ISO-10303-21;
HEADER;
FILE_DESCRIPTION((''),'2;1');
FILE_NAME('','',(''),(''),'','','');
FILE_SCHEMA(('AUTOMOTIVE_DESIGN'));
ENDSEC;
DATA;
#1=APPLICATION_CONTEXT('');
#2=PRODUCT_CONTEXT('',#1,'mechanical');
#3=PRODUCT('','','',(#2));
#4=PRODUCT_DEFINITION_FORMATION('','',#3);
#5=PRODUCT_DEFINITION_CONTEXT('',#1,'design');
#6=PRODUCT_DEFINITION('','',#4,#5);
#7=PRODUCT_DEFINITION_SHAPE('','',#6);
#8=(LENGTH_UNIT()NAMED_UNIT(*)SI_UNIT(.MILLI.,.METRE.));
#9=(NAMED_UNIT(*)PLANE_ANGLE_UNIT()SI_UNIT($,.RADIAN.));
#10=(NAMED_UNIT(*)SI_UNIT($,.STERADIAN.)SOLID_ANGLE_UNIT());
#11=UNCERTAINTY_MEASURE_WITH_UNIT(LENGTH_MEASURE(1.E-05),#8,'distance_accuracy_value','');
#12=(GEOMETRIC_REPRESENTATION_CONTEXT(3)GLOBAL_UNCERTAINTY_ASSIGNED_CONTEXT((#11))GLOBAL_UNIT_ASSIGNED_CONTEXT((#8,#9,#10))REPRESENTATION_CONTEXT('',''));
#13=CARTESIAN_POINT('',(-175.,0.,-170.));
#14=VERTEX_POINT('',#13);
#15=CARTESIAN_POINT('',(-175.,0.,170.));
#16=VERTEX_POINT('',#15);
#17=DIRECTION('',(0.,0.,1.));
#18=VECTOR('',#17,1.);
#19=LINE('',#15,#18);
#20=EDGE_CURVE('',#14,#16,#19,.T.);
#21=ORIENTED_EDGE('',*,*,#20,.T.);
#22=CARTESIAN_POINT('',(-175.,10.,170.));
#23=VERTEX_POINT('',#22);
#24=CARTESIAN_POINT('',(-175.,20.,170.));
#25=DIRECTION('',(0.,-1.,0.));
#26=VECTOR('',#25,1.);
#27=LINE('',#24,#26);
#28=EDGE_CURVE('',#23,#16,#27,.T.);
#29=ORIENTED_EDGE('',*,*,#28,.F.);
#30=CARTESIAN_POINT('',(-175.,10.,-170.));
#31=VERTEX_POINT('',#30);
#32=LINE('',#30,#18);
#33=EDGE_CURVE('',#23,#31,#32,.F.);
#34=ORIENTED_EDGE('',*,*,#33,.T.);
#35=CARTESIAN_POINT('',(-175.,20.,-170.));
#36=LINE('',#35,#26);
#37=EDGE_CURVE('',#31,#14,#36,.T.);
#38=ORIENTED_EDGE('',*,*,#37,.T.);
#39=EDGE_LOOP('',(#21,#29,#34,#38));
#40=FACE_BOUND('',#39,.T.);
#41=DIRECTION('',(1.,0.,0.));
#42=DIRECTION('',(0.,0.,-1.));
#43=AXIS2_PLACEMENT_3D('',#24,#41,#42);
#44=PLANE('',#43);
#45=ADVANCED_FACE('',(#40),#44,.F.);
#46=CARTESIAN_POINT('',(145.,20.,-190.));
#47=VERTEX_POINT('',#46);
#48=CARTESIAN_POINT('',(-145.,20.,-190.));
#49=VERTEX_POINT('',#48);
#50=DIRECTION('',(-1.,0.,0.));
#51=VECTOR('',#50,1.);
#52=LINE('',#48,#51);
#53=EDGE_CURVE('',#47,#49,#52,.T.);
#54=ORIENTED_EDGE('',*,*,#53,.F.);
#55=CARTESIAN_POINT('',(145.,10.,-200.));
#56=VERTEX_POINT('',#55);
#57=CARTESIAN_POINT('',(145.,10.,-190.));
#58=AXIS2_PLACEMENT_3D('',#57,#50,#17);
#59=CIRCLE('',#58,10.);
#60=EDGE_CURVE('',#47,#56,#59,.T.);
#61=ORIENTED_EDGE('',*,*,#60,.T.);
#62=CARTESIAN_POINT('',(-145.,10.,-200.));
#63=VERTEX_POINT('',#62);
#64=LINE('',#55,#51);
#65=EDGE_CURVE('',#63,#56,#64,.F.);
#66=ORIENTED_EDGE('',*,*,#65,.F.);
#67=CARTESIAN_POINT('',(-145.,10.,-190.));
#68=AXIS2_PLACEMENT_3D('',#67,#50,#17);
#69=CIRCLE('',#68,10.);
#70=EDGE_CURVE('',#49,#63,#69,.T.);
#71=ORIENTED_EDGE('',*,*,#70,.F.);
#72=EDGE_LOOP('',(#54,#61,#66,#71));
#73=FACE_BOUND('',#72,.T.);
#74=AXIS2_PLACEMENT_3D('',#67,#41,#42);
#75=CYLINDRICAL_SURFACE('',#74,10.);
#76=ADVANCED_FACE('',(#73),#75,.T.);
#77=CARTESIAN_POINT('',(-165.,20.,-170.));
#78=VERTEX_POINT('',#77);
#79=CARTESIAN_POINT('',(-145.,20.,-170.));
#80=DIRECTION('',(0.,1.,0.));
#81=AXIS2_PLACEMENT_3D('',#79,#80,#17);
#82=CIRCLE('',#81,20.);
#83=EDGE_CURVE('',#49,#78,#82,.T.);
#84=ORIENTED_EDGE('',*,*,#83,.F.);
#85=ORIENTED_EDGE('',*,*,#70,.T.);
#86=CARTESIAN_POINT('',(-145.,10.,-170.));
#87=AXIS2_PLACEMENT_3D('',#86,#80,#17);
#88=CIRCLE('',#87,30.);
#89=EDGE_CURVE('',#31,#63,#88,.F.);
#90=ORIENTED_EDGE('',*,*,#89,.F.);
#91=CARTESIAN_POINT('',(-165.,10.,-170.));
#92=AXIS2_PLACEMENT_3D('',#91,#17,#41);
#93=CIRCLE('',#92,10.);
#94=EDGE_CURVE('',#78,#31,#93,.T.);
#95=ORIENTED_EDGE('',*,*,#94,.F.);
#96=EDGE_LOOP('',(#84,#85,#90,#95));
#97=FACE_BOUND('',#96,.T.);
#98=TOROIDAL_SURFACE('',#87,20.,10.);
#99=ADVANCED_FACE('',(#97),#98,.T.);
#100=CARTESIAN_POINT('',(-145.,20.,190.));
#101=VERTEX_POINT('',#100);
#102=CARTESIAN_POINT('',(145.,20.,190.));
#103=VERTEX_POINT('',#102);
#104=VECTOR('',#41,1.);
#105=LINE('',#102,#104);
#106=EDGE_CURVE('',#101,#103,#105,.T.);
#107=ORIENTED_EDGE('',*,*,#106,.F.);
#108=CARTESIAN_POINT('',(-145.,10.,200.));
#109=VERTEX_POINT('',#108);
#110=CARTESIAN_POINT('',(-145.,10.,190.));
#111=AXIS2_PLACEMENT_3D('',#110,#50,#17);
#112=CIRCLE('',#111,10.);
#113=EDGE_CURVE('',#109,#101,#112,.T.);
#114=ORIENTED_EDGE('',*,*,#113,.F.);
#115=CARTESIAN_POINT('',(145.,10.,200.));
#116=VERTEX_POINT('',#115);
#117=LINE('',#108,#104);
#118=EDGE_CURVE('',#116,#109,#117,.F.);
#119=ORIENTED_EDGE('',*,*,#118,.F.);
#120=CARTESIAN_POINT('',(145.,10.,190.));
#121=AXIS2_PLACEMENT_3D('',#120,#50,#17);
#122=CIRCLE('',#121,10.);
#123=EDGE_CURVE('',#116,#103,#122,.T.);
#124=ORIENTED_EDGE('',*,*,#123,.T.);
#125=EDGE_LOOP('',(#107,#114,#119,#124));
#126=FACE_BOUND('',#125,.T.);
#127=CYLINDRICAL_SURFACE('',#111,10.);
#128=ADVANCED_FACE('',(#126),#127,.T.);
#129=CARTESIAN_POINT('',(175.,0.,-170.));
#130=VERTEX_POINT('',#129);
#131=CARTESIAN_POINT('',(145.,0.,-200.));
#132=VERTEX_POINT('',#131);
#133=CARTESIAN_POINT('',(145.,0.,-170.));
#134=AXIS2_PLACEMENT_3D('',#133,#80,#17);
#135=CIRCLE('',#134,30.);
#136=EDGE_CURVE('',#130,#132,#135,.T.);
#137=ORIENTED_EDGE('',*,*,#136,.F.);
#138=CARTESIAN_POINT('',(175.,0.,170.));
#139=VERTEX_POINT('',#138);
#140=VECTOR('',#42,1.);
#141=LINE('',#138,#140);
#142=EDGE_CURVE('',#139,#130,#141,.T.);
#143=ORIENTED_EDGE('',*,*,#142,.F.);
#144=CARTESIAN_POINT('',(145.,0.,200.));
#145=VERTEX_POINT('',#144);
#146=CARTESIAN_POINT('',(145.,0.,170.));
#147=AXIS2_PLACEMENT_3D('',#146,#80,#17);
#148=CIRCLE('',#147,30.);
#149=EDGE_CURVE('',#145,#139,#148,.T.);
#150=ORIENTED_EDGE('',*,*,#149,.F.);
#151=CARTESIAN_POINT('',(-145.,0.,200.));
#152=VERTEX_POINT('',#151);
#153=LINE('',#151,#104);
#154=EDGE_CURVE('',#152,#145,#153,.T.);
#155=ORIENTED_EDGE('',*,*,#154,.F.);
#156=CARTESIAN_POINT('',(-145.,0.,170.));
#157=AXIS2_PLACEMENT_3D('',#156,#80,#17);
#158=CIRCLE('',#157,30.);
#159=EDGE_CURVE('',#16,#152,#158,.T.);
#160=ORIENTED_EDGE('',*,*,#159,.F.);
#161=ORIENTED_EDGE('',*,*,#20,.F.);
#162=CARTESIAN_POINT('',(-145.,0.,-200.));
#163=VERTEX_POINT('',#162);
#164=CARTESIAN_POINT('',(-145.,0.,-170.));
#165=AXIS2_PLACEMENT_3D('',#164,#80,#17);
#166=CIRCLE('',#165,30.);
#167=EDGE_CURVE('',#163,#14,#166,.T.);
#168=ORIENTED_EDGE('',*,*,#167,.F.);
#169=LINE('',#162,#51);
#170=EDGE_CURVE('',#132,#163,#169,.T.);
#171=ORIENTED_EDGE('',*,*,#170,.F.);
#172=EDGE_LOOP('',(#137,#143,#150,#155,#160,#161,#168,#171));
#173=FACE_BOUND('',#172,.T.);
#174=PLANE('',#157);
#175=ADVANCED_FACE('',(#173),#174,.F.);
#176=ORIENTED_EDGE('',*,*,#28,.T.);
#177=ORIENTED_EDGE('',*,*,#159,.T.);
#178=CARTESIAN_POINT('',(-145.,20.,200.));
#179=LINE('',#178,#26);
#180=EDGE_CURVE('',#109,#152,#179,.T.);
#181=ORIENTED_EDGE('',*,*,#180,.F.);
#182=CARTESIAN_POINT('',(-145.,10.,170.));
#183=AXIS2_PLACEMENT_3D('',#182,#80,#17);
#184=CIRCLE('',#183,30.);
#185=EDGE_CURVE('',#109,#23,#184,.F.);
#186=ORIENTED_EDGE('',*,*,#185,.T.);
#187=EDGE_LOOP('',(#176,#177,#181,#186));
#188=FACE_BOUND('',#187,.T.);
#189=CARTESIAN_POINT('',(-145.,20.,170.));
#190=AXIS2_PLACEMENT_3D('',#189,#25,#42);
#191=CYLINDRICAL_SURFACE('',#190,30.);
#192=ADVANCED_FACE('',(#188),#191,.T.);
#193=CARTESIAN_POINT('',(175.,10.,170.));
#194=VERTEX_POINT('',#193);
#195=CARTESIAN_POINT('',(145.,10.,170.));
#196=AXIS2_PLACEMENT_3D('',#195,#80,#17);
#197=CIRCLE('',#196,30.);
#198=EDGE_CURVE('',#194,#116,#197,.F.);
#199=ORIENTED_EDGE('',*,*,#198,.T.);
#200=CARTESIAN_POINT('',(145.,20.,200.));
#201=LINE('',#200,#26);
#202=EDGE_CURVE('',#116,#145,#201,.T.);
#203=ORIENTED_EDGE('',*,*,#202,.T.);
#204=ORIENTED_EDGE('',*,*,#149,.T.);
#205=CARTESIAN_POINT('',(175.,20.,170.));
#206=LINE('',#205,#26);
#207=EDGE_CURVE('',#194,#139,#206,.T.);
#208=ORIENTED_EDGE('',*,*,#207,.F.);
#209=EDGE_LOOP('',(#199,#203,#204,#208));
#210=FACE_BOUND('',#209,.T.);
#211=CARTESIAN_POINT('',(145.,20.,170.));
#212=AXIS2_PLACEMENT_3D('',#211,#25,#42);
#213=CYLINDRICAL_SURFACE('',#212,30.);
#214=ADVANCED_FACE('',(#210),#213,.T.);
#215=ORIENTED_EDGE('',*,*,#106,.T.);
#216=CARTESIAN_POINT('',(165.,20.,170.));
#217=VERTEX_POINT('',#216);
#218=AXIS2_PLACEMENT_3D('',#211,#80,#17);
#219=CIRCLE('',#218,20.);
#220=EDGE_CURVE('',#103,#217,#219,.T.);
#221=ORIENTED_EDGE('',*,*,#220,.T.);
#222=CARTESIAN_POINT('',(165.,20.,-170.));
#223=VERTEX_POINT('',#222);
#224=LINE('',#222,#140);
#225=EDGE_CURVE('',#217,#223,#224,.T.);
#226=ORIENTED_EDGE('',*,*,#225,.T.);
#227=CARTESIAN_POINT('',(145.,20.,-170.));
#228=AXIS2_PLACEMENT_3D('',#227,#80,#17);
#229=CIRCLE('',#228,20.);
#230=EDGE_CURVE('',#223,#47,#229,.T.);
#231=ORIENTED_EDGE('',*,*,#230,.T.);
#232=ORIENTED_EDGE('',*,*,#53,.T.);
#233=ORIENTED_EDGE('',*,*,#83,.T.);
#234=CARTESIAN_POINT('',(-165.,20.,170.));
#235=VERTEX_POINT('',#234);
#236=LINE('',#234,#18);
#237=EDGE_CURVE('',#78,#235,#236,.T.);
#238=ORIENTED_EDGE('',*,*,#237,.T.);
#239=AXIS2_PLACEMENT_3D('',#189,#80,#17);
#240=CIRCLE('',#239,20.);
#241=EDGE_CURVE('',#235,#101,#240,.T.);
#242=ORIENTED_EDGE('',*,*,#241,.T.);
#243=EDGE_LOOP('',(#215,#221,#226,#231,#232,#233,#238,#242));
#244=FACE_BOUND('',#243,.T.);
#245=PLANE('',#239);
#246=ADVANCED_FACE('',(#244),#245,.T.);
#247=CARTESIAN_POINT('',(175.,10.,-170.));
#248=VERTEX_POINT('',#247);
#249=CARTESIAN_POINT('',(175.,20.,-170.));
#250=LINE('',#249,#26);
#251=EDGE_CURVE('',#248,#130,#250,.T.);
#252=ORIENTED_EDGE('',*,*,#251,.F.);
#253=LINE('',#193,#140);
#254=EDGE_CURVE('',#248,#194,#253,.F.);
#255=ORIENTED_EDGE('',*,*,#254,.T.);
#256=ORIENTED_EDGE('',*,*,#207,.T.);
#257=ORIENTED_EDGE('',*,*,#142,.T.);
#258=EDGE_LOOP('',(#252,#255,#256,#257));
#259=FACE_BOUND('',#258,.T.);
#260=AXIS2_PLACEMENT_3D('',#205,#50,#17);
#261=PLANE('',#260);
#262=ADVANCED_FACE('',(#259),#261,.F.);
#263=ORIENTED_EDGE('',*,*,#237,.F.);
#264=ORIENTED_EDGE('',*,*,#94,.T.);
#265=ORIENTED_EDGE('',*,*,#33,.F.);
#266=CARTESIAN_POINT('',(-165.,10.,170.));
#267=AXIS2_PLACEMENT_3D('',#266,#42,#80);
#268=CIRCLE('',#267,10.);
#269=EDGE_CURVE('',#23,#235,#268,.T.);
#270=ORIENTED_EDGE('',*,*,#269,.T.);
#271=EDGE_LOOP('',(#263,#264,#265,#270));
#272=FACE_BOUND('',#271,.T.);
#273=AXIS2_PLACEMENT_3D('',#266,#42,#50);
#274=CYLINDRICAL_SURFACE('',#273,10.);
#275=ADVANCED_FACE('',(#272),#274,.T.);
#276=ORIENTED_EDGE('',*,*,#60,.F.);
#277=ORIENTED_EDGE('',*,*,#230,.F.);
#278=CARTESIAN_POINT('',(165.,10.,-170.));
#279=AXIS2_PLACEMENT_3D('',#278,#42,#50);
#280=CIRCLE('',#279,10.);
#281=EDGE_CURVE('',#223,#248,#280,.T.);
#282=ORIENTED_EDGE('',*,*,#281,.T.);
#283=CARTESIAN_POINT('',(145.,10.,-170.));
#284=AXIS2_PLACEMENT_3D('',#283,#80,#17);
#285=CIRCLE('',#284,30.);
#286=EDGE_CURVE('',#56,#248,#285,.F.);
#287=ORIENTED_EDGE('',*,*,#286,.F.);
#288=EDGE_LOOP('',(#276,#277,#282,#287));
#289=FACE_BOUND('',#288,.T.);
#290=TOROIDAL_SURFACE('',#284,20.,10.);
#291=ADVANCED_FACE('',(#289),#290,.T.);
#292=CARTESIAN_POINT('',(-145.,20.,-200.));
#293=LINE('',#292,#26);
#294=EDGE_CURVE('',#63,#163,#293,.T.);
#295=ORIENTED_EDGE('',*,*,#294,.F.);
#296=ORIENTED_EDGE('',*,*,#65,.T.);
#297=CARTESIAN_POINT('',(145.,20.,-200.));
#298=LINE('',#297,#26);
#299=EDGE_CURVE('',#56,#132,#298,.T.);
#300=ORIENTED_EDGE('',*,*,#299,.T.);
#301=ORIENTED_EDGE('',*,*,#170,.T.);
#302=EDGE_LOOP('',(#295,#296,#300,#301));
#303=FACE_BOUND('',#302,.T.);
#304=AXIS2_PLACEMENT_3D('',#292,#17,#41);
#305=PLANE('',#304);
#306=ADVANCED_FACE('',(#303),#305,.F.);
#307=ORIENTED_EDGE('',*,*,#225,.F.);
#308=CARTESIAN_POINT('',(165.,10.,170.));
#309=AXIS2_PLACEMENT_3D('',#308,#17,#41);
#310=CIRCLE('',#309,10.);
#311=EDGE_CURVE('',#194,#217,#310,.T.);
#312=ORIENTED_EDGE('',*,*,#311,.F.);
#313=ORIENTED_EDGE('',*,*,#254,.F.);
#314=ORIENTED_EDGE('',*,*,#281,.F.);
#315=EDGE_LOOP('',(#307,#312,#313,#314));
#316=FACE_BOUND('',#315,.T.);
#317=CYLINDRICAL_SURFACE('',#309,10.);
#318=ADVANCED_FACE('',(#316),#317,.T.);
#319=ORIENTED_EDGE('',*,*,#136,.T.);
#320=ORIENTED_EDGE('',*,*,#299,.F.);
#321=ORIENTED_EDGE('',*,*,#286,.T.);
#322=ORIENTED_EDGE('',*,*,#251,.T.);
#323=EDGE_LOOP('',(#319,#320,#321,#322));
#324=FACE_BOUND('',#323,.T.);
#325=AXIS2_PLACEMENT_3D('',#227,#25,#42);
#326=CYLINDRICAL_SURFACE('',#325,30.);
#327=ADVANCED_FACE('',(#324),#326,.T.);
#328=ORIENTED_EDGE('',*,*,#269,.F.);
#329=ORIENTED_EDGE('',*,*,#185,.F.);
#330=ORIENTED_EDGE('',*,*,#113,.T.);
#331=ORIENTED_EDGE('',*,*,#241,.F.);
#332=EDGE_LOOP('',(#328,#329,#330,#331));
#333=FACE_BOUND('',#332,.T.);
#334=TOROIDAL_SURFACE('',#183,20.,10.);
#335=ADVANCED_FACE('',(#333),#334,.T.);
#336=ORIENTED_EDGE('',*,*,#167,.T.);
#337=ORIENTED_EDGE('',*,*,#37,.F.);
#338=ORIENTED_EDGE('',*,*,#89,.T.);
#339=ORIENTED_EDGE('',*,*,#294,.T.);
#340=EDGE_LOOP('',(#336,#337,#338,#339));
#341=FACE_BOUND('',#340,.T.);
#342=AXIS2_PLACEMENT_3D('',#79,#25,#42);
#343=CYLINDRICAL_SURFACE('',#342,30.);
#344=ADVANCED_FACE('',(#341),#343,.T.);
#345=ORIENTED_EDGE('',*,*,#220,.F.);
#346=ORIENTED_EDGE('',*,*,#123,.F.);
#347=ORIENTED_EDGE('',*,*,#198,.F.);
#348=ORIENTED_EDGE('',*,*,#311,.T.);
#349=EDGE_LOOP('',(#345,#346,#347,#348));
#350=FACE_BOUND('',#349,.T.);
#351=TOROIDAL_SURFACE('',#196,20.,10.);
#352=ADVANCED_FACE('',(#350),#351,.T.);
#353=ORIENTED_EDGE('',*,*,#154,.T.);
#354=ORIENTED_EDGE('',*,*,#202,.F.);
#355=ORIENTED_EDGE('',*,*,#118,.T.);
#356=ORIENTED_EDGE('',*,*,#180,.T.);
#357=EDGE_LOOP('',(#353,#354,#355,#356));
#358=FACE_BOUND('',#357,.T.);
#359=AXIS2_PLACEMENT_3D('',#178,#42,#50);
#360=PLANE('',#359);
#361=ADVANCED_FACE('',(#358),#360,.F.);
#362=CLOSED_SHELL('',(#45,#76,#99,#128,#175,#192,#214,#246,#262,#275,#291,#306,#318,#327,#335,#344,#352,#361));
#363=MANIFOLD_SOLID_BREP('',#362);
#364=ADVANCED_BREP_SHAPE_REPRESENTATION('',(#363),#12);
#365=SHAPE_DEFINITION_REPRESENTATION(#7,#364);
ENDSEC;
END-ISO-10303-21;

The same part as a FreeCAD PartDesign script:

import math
import FreeCAD as App
import Part
import Sketcher
from FreeCAD import Vector


def edges_at(feature, points):
    """Names of the edges that pass closest to the given points."""
    edges = feature.Shape.Edges
    near = lambda p: min(range(len(edges)), key=lambda i: edges[i].distToShape(Part.Vertex(*p))[0])
    return sorted({f"Edge{near(p) + 1}" for p in points})

doc = App.newDocument("Part")
params = doc.addObject("Spreadsheet::Sheet", "Params")
for row, (alias, value) in enumerate([
    ("sketch1_radius", "30 mm"),
    ("sketch1_width", "290 mm"),
    ("sketch1_height", "340 mm"),
    ("pad1_length", "20 mm"),
    ("fillet_radius", "10 mm"),
], start=1):
    params.set(f"A{row}", alias)
    params.set(f"B{row}", "=" + value)
    params.setAlias(f"B{row}", alias)

body = doc.addObject("PartDesign::Body", "Body")

# Sketch on XZ plane
sketch1 = body.newObject("Sketcher::SketchObject", "Sketch")
sketch1.AttachmentSupport = (doc.getObject("XZ_Plane"), [""])
sketch1.MapMode = "FlatFace"
sketch1.addGeometry([
    Part.LineSegment(Vector(-145, 200, 0), Vector(145, 200, 0)),  # 0
    Part.ArcOfCircle(Part.Circle(Vector(145, 170, 0), Vector(0, 0, 1), 30), math.radians(0), math.radians(90)),  # 1
    Part.LineSegment(Vector(175, 170, 0), Vector(175, -170, 0)),  # 2
    Part.ArcOfCircle(Part.Circle(Vector(145, -170, 0), Vector(0, 0, 1), 30), math.radians(-90), math.radians(0)),  # 3
    Part.LineSegment(Vector(145, -200, 0), Vector(-145, -200, 0)),  # 4
    Part.ArcOfCircle(Part.Circle(Vector(-145, -170, 0), Vector(0, 0, 1), 30), math.radians(180), math.radians(270)),  # 5
    Part.LineSegment(Vector(-175, -170, 0), Vector(-175, 170, 0)),  # 6
    Part.ArcOfCircle(Part.Circle(Vector(-145, 170, 0), Vector(0, 0, 1), 30), math.radians(90), math.radians(180)),  # 7
], False)
sketch1.addConstraint([
    Sketcher.Constraint("Tangent", 0, 2, 1, 2),
    Sketcher.Constraint("Tangent", 1, 1, 2, 1),
    Sketcher.Constraint("Tangent", 2, 2, 3, 2),
    Sketcher.Constraint("Tangent", 3, 1, 4, 1),
    Sketcher.Constraint("Tangent", 4, 2, 5, 2),
    Sketcher.Constraint("Tangent", 5, 1, 6, 1),
    Sketcher.Constraint("Tangent", 6, 2, 7, 2),
    Sketcher.Constraint("Tangent", 7, 1, 0, 1),
    Sketcher.Constraint("Horizontal", 0),
    Sketcher.Constraint("Vertical", 2),
    Sketcher.Constraint("Horizontal", 4),
    Sketcher.Constraint("Vertical", 6),
    Sketcher.Constraint("Equal", 1, 3),
    Sketcher.Constraint("Equal", 3, 5),
    Sketcher.Constraint("Equal", 5, 7),
    Sketcher.Constraint("Symmetric", 1, 3, 5, 3, -1, 1),
    Sketcher.Constraint("Radius", 1, 30.0),
    Sketcher.Constraint("DistanceX", 0, 1, 0, 2, 290.0),
    Sketcher.Constraint("DistanceY", 2, 2, 2, 1, 340.0),
])
sketch1.setExpression("Constraints[16]", "Params.sketch1_radius")
sketch1.setExpression("Constraints[17]", "Params.sketch1_width")
sketch1.setExpression("Constraints[18]", "Params.sketch1_height")
pad1 = body.newObject("PartDesign::Pad", "Pad")
pad1.Profile = sketch1
pad1.setExpression("Length", "Params.pad1_length")
pad1.Reversed = True
doc.recompute()

fillet = body.newObject("PartDesign::Fillet", "Fillet")
fillet.Base = (pad1, edges_at(pad1, [
    (166.213, 20, 191.213),
    (175, 20, 0),
    (166.213, 20, -191.213),
    (0, 20, -200),
    (-166.213, 20, -191.213),
    (-175, 20, 0),
    (-166.213, 20, 191.213),
    (0, 20, 200),
]))
fillet.setExpression("Radius", "Params.fillet_radius")

doc.recompute()
